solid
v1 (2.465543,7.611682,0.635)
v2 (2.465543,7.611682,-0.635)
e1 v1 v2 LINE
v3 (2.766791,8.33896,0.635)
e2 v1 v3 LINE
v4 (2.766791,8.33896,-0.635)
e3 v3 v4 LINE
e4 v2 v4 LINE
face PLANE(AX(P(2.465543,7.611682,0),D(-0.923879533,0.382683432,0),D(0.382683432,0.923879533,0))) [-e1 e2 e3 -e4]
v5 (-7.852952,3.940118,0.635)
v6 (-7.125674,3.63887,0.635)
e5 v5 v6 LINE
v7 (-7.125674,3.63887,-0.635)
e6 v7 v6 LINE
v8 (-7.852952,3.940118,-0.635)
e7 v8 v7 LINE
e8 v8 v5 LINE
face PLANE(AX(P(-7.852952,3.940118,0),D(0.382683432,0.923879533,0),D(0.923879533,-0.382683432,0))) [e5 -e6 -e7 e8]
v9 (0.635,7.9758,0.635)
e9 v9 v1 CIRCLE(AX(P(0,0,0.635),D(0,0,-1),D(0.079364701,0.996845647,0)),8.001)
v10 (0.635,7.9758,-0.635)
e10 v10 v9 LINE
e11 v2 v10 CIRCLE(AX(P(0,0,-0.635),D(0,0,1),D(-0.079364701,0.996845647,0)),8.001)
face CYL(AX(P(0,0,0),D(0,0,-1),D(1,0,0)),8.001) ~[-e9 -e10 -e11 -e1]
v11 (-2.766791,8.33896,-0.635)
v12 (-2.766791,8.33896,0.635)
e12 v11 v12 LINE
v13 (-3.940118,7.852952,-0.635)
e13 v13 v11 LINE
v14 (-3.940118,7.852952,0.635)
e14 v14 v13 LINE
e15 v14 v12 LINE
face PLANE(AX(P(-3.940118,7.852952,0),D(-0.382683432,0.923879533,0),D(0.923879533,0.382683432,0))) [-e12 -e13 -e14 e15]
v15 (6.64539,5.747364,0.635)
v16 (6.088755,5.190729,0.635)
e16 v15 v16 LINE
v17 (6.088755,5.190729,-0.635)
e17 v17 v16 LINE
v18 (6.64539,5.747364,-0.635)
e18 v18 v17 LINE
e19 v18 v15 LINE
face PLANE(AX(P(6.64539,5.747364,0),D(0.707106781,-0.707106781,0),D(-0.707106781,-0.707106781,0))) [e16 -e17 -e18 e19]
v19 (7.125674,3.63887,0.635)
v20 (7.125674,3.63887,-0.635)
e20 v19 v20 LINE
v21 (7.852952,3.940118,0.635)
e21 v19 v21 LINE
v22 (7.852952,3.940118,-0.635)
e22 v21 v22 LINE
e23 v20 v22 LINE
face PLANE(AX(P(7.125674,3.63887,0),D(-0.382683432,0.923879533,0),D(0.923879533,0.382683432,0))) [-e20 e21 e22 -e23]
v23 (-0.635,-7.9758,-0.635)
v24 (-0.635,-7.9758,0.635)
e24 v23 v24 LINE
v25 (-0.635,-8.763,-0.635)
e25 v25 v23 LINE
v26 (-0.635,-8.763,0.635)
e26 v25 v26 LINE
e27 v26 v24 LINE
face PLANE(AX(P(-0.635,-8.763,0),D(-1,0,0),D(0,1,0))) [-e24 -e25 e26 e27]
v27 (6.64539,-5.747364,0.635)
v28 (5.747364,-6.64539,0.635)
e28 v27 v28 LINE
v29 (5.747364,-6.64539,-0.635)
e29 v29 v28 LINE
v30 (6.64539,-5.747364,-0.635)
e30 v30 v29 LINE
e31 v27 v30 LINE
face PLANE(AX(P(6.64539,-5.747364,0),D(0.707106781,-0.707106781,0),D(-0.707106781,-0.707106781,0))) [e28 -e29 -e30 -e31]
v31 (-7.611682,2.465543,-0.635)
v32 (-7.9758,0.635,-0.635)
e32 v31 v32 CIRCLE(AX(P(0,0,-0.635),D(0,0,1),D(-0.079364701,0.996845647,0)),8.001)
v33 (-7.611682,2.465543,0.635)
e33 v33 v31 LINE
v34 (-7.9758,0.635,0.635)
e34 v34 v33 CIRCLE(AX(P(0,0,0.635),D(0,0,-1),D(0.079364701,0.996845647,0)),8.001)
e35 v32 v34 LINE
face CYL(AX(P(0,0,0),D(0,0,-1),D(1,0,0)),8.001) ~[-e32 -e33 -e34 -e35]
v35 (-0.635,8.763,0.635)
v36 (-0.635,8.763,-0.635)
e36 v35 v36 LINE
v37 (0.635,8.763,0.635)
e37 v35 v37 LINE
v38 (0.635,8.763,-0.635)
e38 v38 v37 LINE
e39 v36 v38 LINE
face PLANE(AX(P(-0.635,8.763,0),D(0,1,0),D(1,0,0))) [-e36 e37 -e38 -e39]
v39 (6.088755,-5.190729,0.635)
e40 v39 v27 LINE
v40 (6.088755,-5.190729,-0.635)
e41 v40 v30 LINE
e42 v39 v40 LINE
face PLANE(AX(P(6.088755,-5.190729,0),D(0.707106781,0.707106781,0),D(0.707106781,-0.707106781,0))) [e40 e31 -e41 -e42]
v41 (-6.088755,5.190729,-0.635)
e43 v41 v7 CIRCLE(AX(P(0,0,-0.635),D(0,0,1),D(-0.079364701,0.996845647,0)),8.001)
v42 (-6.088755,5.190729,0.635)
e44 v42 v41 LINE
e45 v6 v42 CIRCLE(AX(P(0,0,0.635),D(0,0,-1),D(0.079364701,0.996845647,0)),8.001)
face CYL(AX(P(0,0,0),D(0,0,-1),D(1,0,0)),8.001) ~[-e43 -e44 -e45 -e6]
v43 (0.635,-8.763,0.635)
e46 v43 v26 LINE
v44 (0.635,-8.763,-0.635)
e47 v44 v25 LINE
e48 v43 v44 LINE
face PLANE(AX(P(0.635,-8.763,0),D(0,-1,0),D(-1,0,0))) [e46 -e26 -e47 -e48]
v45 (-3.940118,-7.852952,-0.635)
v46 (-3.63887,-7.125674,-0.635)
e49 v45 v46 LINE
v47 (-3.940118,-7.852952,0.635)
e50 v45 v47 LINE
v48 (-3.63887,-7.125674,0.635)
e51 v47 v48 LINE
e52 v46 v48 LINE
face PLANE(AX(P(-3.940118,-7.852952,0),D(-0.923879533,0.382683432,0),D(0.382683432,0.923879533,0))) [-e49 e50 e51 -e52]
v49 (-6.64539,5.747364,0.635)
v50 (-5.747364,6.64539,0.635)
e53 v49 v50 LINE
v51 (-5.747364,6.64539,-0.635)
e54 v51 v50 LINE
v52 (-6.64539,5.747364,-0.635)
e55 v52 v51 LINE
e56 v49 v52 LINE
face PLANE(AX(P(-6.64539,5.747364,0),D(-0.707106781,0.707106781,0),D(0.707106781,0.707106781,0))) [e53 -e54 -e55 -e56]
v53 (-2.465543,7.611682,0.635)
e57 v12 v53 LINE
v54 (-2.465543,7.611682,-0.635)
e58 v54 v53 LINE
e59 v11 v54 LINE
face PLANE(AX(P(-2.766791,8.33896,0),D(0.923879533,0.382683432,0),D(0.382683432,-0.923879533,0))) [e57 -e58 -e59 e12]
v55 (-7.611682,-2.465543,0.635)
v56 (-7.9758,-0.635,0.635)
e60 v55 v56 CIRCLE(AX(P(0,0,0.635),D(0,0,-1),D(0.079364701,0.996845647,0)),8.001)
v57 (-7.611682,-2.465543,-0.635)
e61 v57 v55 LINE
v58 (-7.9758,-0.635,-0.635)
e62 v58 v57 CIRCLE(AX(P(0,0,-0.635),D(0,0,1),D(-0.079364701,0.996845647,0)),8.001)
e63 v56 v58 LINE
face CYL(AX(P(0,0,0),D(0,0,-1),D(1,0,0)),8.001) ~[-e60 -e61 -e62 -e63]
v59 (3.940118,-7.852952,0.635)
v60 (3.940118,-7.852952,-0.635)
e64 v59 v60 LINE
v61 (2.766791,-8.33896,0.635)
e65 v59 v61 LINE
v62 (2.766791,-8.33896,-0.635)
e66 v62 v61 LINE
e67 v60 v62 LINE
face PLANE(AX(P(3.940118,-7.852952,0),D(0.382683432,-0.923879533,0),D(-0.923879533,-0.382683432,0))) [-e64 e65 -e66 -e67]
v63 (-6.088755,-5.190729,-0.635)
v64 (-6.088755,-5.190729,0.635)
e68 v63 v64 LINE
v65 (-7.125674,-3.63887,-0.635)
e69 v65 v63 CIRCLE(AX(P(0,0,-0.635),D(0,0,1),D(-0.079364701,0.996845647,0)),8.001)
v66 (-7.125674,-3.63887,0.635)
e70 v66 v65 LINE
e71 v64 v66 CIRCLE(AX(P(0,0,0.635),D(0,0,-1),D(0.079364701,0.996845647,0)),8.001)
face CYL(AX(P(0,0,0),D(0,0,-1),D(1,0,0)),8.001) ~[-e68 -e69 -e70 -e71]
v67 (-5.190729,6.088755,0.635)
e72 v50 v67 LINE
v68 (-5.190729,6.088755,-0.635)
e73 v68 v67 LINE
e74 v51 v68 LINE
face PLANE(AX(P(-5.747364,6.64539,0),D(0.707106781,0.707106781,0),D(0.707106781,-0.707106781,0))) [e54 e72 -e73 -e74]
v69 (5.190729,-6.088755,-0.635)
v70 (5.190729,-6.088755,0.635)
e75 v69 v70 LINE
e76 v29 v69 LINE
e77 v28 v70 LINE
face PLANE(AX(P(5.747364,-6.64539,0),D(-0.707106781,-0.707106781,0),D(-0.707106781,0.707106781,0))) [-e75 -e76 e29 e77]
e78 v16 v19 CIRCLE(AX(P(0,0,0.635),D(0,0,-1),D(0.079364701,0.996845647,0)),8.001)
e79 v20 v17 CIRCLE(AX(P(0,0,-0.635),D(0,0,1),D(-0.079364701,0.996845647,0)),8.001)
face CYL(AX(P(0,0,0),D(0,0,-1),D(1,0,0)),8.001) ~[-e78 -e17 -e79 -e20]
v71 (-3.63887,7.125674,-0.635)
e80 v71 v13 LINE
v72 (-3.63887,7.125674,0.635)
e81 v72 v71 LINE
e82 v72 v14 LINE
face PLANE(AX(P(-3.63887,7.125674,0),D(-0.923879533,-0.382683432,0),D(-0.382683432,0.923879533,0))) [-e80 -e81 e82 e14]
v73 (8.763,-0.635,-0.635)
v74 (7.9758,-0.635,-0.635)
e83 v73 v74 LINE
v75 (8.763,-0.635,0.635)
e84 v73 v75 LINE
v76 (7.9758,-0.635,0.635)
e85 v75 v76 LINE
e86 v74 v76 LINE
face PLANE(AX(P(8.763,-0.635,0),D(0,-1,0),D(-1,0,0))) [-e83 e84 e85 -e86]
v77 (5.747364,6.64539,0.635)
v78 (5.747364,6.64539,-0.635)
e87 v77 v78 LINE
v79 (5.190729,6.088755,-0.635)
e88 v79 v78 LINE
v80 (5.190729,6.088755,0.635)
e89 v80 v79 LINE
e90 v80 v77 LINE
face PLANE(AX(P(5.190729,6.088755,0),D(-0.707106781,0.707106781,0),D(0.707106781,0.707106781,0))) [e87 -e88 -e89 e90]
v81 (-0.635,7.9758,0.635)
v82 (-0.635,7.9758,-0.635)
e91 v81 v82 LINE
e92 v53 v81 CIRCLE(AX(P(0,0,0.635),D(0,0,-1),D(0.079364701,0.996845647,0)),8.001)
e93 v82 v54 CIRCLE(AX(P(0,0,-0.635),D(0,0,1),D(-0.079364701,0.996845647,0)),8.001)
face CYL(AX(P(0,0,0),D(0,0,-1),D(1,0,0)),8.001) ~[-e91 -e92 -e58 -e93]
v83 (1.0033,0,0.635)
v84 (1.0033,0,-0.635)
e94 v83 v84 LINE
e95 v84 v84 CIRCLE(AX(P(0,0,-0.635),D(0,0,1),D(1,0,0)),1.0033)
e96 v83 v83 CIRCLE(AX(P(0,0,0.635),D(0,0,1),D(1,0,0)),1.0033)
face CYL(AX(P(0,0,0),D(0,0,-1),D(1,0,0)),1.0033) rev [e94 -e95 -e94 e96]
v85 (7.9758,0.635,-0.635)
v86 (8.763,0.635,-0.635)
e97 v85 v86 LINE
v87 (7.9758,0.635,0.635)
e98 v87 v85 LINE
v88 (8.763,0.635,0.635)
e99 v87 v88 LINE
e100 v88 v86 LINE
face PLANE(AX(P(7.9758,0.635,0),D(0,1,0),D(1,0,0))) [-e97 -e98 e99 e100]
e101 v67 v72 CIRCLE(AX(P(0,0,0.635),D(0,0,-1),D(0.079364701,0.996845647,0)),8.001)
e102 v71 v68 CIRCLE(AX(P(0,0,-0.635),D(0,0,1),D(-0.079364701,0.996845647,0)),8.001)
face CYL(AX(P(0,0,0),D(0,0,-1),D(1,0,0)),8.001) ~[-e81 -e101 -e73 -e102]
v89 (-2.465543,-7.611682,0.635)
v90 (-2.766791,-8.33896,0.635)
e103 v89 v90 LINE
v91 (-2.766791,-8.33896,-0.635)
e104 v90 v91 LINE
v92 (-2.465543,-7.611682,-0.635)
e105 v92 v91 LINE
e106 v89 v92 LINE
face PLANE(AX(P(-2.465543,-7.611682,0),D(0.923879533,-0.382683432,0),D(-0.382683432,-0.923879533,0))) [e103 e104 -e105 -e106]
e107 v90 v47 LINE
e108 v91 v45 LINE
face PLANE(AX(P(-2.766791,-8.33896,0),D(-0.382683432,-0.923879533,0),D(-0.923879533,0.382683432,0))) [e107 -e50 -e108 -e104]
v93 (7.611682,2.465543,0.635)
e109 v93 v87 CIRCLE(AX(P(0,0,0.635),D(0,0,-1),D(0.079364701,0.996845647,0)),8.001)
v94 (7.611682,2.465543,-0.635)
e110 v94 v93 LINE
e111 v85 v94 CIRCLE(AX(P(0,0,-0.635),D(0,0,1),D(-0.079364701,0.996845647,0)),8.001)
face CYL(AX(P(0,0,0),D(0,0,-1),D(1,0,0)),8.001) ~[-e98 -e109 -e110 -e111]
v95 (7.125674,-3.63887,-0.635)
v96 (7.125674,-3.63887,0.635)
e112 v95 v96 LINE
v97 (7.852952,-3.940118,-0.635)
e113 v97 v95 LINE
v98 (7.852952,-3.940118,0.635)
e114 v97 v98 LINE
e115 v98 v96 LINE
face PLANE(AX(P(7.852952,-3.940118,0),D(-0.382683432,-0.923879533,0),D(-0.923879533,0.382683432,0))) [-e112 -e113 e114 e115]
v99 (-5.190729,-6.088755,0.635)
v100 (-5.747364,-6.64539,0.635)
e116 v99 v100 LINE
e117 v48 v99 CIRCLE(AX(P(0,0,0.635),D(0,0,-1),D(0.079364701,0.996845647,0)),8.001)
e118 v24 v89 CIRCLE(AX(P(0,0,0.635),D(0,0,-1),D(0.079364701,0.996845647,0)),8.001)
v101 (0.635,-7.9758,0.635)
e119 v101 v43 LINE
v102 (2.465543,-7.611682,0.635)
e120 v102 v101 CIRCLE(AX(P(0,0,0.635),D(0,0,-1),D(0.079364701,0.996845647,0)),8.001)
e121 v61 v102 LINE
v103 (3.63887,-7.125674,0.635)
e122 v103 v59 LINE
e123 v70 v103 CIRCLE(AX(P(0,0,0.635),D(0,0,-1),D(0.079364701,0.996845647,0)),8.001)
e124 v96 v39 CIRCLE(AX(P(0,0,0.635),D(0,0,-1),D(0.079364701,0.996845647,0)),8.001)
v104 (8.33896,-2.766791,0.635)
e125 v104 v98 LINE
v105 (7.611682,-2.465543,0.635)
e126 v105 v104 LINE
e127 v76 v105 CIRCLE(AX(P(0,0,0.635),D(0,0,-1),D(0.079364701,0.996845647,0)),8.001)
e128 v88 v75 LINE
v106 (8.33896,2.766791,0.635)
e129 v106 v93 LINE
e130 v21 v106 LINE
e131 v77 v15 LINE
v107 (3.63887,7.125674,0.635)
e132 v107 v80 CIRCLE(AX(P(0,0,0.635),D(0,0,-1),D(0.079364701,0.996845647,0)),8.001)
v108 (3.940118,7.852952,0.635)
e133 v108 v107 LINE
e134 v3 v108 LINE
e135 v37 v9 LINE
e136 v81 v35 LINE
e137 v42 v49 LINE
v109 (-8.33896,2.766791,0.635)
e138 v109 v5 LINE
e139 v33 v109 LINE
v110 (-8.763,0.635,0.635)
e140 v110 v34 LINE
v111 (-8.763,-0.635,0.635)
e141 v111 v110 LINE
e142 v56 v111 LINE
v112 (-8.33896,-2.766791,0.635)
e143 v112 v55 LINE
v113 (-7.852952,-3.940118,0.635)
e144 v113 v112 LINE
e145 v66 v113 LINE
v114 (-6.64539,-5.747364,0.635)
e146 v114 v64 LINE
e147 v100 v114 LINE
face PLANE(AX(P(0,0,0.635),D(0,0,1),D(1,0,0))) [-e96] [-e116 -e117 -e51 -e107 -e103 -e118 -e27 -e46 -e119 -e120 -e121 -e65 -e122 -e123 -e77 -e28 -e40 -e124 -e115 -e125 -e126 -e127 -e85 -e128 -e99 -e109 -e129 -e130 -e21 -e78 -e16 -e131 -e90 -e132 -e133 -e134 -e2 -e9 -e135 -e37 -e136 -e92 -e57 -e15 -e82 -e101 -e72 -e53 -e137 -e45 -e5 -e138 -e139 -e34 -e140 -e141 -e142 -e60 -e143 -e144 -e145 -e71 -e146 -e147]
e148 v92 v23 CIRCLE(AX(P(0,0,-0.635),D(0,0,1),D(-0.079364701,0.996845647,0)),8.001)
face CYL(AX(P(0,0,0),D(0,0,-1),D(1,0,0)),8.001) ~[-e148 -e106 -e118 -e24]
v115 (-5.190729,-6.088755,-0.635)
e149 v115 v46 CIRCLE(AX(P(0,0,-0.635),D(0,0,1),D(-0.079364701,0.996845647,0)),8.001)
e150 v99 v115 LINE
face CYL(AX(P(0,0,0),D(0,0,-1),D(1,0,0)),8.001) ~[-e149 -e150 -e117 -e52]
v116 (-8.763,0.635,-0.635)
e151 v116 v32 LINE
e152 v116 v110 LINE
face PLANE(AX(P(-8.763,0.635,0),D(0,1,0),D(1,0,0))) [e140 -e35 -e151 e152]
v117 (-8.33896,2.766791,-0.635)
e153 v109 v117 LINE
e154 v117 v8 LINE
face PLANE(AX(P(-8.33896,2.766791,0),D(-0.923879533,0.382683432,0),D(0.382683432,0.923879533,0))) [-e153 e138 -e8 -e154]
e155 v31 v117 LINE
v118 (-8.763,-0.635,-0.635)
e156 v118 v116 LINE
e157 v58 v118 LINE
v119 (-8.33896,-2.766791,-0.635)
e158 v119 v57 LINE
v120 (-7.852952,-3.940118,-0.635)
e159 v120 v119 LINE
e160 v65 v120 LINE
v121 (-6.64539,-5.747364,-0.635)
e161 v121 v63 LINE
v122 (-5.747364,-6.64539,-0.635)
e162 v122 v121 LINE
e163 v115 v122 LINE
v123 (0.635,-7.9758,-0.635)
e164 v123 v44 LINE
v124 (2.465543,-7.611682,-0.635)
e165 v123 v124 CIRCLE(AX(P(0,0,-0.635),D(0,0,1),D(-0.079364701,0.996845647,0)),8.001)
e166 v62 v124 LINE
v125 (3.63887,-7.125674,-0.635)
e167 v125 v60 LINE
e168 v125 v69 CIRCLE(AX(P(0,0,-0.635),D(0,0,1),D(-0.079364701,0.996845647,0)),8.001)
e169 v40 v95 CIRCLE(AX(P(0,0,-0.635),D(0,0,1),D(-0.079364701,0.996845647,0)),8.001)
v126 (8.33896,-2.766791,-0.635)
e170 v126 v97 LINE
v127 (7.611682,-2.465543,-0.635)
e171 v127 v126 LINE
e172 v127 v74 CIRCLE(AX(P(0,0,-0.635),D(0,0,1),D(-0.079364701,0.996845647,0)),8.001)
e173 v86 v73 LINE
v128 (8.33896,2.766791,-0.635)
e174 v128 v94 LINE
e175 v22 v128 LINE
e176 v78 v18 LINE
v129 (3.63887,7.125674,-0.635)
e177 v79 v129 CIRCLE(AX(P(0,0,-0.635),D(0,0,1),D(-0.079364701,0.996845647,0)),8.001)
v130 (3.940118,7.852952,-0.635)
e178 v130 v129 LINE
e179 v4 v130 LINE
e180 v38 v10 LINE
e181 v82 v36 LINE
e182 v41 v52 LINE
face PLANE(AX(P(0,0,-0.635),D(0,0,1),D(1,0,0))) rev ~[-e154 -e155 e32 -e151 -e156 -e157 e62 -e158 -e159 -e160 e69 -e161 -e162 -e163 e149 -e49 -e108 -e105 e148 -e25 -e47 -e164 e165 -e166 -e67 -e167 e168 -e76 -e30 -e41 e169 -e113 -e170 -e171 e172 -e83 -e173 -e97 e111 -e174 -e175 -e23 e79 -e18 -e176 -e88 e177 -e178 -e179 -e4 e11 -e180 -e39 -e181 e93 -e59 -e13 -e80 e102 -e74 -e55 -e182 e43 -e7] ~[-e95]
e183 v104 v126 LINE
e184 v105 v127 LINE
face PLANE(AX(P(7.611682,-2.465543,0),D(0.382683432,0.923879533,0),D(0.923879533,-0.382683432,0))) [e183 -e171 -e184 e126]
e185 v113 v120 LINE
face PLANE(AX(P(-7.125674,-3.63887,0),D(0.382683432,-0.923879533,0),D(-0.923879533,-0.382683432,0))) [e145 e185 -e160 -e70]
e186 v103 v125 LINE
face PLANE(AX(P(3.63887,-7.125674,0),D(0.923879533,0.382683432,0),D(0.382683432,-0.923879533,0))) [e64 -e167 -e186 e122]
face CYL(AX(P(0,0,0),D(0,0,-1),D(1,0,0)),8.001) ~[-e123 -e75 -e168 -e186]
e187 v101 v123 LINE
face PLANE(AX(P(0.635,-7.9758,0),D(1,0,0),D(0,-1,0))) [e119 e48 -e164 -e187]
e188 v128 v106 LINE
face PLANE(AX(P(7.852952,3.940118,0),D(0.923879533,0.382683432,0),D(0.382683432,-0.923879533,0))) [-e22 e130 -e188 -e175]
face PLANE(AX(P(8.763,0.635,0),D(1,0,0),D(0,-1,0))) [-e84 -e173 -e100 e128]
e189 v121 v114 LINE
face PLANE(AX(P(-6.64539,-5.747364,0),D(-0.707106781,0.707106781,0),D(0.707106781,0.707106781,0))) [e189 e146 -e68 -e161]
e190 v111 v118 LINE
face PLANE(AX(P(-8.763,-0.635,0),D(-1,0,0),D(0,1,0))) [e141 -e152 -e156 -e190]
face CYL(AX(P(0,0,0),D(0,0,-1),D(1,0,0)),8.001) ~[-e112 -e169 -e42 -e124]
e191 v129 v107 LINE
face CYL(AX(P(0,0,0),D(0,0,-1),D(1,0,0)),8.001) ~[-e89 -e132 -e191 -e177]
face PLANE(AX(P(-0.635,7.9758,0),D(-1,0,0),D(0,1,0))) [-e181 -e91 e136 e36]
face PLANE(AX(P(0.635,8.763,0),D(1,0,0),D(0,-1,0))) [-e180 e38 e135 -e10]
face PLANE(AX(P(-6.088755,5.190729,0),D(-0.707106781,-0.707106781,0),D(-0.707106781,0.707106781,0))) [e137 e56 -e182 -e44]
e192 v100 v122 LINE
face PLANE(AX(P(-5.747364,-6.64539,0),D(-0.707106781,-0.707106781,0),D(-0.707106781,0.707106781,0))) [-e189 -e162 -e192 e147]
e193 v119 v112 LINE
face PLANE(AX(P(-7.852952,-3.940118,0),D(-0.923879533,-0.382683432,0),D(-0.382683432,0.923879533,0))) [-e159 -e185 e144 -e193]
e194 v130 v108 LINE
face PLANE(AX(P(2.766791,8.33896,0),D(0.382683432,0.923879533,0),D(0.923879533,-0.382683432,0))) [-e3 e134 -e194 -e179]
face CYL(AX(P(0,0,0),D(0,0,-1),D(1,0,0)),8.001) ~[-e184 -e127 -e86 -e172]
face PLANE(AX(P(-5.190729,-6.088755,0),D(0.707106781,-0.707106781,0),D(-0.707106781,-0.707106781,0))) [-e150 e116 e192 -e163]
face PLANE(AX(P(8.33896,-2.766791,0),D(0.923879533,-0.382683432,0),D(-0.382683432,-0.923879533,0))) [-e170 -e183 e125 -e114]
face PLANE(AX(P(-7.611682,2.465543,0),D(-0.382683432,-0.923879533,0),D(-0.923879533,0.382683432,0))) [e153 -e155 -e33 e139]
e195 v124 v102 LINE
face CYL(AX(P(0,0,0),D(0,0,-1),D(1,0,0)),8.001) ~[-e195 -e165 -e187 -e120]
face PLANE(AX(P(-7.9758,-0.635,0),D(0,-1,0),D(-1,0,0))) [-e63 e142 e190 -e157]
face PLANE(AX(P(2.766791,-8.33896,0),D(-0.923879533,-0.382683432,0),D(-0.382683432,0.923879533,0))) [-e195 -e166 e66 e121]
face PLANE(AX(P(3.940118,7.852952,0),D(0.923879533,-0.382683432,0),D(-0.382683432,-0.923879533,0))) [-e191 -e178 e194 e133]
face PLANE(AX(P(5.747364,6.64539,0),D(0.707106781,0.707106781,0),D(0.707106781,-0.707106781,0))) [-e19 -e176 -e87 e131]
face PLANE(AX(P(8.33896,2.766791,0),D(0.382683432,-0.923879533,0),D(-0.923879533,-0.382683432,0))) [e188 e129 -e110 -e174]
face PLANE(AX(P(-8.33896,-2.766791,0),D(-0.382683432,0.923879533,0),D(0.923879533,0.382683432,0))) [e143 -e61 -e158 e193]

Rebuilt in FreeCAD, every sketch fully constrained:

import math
import FreeCAD as App
import Part
import Sketcher
from FreeCAD import Vector
Q = App.Units.Quantity

doc = App.newDocument("Part")
params = doc.addObject("Spreadsheet::Sheet", "Params")
for row, (alias, value) in enumerate([
    ("sketch1_diameter", "0.63 in"),
    ("sketch1_diameter2", "0.079 in"),
    ("pad1_length", "0.05 in"),
    ("sketch2_radius", "0.315 in"),
    ("sketch2_height", "0.031 in"),
    ("pad2_length", "0.05 in"),
], start=1):
    params.set(f"A{row}", alias)
    params.set(f"B{row}", "=" + value)
    params.setAlias(f"B{row}", alias)

body = doc.addObject("PartDesign::Body", "Body")

sketch1 = doc.addObject("Sketcher::SketchObject", "Sketch")
body.addObject(sketch1)
sketch1.AttachmentSupport = (doc.XY_Plane, [""])
sketch1.MapMode = "FlatFace"
sketch1.addGeometry(Part.Circle(Vector(0, 0, 0), Vector(0, 0, 1), 8), False)
sketch1.addGeometry(Part.Circle(Vector(0, 0, 0), Vector(0, 0, 1), 1), False)
sketch1.addConstraint(Sketcher.Constraint("Coincident", 0, 3, -1, 1))
sketch1.addConstraint(Sketcher.Constraint("Coincident", 1, 3, -1, 1))
sketch1.addConstraint(Sketcher.Constraint("Diameter", 0, Q("0.63 in")))
sketch1.addConstraint(Sketcher.Constraint("Diameter", 1, Q("0.079 in")))
sketch1.setExpression("Constraints[2]", "Params.sketch1_diameter")
sketch1.setExpression("Constraints[3]", "Params.sketch1_diameter2")
pad1 = doc.addObject("PartDesign::Pad", "Pad")
body.addObject(pad1)
pad1.Profile = sketch1
pad1.setExpression("Length", "Params.pad1_length")
pad1.Midplane = True

sketch2 = doc.addObject("Sketcher::SketchObject", "Sketch001")
body.addObject(sketch2)
sketch2.AttachmentSupport = (doc.XY_Plane, [""])
sketch2.MapMode = "FlatFace"
sketch2.addGeometry(Part.ArcOfCircle(Part.Circle(Vector(0, 0, 0), Vector(0, 0, 1), 8), math.radians(85.45), math.radians(94.55)), False)
sketch2.addGeometry(Part.LineSegment(Vector(0.6, 8, 0), Vector(0.6, 8.8, 0)), False)
sketch2.addGeometry(Part.LineSegment(Vector(0.6, 8.8, 0), Vector(-0.6, 8.8, 0)), False)
sketch2.addGeometry(Part.LineSegment(Vector(-0.6, 8.8, 0), Vector(-0.6, 8, 0)), False)
sketch2.addConstraint(Sketcher.Constraint("Coincident", 0, 1, 1, 1))
sketch2.addConstraint(Sketcher.Constraint("Coincident", 1, 2, 2, 1))
sketch2.addConstraint(Sketcher.Constraint("Coincident", 2, 2, 3, 1))
sketch2.addConstraint(Sketcher.Constraint("Coincident", 3, 2, 0, 2))
sketch2.addConstraint(Sketcher.Constraint("Vertical", 1))
sketch2.addConstraint(Sketcher.Constraint("Horizontal", 2))
sketch2.addConstraint(Sketcher.Constraint("Vertical", 3))
sketch2.addConstraint(Sketcher.Constraint("Coincident", 0, 3, -1, 1))
sketch2.addConstraint(Sketcher.Constraint("Horizontal", 0, 1, 3, 2))
sketch2.addConstraint(Sketcher.Constraint("Radius", 0, Q("0.315 in")))
sketch2.addConstraint(Sketcher.Constraint("DistanceX", -1, 1, 0, 1, Q("0.025 in")))
sketch2.addConstraint(Sketcher.Constraint("DistanceY", 1, 1, 1, 2, Q("0.031 in")))
sketch2.setExpression("Constraints[9]", "Params.sketch2_radius")
sketch2.setExpression("Constraints[11]", "Params.sketch2_height")
pad2 = doc.addObject("PartDesign::Pad", "Pad001")
body.addObject(pad2)
pad2.Profile = sketch2
pad2.setExpression("Length", "Params.pad2_length")
pad2.Midplane = True
doc.recompute()

polarpattern = doc.addObject("PartDesign::PolarPattern", "PolarPattern")
body.addObject(polarpattern)
polarpattern.Originals = [pad2]
polarpattern.Axis = (doc.Z_Axis, [""])
polarpattern.Angle = 360
polarpattern.Occurrences = 16
body.Tip = polarpattern

doc.recompute()
